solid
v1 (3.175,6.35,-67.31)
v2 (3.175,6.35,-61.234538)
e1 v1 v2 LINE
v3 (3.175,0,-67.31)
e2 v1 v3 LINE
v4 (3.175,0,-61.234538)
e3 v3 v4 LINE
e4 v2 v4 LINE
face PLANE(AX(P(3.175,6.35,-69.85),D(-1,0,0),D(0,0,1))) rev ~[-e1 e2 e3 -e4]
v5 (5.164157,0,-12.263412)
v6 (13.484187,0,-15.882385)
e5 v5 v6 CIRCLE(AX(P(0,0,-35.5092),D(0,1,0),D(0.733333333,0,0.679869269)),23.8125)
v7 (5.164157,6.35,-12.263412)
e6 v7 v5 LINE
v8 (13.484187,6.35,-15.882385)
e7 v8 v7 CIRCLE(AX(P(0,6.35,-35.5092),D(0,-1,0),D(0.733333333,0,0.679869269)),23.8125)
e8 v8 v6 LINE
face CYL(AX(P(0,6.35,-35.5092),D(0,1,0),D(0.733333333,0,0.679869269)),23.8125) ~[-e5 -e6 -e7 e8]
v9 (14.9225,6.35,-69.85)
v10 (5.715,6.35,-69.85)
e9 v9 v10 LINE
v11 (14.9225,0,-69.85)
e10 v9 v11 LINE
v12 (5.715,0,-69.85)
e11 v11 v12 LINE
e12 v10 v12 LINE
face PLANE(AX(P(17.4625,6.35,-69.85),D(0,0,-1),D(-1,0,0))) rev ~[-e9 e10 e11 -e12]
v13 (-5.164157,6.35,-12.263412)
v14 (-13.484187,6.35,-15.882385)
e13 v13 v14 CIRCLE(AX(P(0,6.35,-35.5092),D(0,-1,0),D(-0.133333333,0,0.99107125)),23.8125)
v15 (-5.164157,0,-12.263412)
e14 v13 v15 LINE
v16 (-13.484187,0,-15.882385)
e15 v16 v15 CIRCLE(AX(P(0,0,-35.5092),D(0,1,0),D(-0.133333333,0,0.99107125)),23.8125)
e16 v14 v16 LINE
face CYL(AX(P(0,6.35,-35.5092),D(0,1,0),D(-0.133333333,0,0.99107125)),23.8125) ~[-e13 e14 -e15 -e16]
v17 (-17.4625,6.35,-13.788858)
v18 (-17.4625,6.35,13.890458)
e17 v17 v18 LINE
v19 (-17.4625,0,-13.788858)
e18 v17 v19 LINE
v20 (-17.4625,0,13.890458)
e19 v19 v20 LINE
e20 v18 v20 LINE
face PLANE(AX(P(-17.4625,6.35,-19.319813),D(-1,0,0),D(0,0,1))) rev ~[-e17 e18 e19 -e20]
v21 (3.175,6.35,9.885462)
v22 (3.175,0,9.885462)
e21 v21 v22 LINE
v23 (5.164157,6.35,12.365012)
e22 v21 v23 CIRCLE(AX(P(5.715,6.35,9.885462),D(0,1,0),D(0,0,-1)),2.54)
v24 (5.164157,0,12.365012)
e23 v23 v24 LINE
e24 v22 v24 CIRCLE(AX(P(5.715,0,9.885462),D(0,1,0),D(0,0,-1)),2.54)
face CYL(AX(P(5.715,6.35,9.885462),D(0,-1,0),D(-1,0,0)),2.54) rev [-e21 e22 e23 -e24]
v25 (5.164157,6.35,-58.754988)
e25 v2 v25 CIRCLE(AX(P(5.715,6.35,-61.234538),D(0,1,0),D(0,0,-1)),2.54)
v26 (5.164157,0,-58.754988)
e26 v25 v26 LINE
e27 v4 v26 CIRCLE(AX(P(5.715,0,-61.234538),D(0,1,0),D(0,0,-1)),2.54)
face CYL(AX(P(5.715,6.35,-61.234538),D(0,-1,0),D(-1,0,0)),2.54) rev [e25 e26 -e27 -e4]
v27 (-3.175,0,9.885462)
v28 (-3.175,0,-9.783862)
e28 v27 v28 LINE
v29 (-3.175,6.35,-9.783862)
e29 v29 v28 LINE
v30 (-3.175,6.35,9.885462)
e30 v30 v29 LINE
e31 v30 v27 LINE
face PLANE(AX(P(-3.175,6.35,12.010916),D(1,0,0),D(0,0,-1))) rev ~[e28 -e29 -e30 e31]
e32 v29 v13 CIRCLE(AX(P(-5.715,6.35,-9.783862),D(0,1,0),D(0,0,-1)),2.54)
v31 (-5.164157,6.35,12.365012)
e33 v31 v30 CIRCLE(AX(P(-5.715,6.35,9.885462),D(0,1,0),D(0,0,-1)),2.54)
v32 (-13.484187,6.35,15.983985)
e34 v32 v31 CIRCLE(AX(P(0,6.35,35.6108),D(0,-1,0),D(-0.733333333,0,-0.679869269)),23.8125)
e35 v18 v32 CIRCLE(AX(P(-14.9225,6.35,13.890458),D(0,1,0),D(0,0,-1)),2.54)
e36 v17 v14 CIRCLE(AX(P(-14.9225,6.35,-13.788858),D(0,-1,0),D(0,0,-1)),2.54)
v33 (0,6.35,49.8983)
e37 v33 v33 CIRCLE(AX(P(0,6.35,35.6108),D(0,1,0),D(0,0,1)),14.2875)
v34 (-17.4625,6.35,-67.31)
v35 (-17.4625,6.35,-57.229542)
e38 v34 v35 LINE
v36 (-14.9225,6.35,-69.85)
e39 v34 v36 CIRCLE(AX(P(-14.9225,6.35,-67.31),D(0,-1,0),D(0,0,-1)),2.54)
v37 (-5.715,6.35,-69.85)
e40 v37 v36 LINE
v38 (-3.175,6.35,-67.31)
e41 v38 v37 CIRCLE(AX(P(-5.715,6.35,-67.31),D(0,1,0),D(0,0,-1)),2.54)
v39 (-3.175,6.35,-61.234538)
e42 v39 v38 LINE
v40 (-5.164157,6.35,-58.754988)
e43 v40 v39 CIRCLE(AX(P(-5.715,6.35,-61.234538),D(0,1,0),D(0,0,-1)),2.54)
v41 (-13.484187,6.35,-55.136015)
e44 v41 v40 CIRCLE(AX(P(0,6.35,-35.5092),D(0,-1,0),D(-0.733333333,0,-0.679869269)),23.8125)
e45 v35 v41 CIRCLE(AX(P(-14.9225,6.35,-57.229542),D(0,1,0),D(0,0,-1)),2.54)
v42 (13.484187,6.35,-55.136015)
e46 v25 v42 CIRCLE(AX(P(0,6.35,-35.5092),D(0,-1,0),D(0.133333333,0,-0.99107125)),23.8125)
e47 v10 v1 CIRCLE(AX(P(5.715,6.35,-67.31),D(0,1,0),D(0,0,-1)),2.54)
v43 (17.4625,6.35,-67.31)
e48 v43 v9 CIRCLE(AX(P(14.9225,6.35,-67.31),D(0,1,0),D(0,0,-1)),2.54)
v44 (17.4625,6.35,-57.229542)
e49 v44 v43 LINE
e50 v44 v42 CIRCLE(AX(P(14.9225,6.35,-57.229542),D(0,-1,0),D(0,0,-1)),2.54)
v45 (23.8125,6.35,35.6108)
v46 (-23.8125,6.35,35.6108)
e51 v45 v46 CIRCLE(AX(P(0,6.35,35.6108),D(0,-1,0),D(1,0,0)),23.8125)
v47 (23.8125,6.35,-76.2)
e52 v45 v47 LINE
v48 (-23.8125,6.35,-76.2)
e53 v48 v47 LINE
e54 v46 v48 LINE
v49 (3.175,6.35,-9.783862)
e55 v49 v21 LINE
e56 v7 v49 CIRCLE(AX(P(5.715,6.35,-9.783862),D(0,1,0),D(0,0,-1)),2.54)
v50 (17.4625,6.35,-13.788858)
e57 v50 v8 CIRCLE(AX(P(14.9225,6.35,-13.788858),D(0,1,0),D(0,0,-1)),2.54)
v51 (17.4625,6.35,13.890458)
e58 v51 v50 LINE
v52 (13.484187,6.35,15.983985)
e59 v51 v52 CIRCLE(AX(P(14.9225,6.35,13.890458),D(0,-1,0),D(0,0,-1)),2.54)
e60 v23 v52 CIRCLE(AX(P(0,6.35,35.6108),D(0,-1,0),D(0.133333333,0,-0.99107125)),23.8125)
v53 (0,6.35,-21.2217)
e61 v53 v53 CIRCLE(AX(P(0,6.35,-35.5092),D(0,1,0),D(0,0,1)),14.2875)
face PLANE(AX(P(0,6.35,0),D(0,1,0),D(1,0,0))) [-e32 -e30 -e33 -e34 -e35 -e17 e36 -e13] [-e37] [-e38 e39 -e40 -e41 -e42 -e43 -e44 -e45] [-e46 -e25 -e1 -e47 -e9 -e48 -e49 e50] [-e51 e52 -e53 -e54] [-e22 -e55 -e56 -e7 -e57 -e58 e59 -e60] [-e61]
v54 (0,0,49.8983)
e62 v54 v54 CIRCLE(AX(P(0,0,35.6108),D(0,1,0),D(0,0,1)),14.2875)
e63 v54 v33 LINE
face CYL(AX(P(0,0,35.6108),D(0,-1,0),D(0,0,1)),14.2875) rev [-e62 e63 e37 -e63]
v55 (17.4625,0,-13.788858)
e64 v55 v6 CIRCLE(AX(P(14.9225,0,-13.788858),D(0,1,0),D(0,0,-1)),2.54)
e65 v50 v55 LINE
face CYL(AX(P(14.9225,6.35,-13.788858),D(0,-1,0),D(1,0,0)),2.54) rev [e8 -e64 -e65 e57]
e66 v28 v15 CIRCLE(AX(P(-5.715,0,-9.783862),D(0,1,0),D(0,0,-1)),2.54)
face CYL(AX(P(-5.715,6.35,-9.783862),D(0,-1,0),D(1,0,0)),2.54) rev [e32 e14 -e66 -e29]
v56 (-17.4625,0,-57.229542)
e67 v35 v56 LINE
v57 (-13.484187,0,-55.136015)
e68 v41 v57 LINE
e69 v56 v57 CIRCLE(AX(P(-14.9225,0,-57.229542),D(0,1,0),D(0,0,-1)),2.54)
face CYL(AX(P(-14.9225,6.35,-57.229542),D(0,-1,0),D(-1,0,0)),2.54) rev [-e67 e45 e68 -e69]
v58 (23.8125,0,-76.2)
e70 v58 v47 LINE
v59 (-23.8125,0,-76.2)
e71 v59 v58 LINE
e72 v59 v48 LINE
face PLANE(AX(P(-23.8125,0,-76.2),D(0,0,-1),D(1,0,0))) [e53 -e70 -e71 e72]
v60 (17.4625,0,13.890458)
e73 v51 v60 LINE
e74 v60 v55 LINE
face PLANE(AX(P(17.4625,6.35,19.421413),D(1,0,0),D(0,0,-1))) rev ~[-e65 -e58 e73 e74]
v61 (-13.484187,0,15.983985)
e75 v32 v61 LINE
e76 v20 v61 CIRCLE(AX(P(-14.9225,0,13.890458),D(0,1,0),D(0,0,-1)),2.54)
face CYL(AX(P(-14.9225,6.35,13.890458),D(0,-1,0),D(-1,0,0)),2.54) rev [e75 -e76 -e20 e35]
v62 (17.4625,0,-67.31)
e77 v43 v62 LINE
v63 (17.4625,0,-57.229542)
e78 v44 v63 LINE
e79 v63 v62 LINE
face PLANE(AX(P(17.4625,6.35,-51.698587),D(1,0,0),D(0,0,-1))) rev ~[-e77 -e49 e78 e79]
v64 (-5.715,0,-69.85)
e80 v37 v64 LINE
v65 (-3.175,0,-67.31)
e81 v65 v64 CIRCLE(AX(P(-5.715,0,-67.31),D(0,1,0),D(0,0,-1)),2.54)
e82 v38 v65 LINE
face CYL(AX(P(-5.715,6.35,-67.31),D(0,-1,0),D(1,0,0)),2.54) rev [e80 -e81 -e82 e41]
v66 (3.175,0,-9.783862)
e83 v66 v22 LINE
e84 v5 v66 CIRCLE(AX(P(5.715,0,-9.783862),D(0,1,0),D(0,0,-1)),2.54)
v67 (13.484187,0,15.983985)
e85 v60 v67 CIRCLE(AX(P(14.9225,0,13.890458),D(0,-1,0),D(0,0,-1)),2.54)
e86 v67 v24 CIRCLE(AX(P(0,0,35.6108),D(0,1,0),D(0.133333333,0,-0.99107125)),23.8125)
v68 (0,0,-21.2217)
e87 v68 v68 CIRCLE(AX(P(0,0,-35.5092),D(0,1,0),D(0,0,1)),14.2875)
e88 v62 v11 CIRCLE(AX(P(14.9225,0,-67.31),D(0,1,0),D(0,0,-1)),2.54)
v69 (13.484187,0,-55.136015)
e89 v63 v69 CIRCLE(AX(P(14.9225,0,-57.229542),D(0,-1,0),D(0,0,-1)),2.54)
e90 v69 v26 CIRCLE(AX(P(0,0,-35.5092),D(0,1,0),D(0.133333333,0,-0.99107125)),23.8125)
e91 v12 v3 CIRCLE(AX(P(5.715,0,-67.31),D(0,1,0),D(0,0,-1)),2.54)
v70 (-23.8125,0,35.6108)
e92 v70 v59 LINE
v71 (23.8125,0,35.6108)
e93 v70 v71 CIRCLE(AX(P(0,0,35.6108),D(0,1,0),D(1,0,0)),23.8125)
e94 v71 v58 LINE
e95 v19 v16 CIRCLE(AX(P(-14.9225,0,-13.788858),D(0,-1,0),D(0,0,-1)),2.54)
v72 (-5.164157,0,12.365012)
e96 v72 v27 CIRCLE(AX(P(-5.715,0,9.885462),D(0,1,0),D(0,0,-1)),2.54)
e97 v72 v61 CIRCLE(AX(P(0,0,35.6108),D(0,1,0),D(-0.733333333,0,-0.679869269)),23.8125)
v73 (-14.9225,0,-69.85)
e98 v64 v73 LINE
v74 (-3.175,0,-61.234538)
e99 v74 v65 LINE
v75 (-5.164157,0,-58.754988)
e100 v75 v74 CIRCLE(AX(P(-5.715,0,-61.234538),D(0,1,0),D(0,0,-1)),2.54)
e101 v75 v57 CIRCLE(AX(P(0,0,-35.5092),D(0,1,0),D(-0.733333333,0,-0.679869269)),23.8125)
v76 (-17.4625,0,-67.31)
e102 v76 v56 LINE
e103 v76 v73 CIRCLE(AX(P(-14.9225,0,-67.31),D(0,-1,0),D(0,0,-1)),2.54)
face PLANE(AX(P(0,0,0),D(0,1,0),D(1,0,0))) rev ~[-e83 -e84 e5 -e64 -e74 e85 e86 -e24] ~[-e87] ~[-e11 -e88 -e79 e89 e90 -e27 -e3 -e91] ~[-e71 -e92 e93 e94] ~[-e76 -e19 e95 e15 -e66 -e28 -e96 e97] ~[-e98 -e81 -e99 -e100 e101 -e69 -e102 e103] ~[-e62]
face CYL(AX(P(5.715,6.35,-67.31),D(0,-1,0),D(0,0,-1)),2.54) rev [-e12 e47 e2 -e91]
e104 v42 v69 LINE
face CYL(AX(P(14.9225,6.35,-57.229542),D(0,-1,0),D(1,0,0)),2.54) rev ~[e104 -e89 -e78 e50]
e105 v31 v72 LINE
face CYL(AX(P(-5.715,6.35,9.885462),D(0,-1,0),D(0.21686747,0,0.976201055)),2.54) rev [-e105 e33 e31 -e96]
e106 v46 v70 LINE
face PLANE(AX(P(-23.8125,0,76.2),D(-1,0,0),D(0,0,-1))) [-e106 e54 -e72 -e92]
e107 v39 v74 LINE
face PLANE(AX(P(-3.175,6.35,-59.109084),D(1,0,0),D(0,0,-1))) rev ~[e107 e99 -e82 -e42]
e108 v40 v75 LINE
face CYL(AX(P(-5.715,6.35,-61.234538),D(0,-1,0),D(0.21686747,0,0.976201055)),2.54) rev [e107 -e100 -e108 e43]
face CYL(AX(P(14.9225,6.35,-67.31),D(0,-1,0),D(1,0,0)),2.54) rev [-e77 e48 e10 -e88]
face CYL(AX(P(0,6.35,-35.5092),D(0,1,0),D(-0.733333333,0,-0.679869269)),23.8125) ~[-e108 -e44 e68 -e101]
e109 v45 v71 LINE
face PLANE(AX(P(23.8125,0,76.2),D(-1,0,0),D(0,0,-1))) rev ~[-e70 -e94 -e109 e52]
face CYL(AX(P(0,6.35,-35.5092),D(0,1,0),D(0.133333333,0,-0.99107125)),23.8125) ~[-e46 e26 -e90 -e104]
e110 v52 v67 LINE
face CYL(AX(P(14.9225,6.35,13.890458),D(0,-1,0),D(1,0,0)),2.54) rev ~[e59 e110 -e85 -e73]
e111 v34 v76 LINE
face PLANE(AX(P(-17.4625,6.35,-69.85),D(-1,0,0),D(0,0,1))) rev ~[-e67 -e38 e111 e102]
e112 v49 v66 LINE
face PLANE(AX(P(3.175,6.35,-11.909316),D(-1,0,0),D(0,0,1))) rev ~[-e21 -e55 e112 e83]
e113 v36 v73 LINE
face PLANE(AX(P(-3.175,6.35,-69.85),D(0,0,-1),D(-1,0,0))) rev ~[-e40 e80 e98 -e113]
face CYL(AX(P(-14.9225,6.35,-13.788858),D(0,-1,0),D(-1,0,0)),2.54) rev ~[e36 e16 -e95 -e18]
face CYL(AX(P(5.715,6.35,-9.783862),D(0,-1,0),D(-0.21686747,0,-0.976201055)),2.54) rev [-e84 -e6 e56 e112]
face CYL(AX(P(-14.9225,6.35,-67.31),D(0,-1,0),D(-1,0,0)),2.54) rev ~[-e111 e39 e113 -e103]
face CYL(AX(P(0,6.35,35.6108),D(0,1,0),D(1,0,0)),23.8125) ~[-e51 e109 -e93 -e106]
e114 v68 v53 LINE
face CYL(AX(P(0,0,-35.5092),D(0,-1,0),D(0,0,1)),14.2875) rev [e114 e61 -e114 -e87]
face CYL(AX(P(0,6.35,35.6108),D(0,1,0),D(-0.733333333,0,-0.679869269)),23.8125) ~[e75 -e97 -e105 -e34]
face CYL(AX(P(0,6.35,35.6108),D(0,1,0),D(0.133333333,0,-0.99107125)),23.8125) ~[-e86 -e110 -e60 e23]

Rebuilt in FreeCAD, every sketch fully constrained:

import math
import FreeCAD as App
import Part
import Sketcher
from FreeCAD import Vector
Q = App.Units.Quantity


def edges_at(feature, points):
    """Names of the edges that pass closest to the given points."""
    edges = feature.Shape.Edges
    near = lambda p: min(range(len(edges)), key=lambda i: edges[i].distToShape(Part.Vertex(*p))[0])
    return sorted({f"Edge{near(p) + 1}" for p in points})

doc = App.newDocument("Part")
body = doc.addObject("PartDesign::Body", "Body")

# Sketch on XZ plane
sketch1 = doc.addObject("Sketcher::SketchObject", "Sketch")
body.addObject(sketch1)
sketch1.AttachmentSupport = (doc.XZ_Plane, [""])
sketch1.MapMode = "FlatFace"
sketch1.addGeometry(Part.LineSegment(Vector(-23.8125, -76.2, 0), Vector(-23.8125, 76.2, 0)), False)
sketch1.addGeometry(Part.LineSegment(Vector(-23.8125, 76.2, 0), Vector(23.8125, 76.2, 0)), False)
sketch1.addGeometry(Part.LineSegment(Vector(23.8125, 76.2, 0), Vector(23.8125, -76.2, 0)), False)
sketch1.addGeometry(Part.LineSegment(Vector(23.8125, -76.2, 0), Vector(-23.8125, -76.2, 0)), False)
sketch1.addGeometry(Part.Circle(Vector(0, 35.6108, 0), Vector(0, 0, 1), 14.2875), False)
sketch1.addGeometry(Part.Circle(Vector(0, -35.5092, 0), Vector(0, 0, 1), 14.2875), False)
sketch1.addConstraint(Sketcher.Constraint("Coincident", 0, 2, 1, 1))
sketch1.addConstraint(Sketcher.Constraint("Coincident", 1, 2, 2, 1))
sketch1.addConstraint(Sketcher.Constraint("Coincident", 2, 2, 3, 1))
sketch1.addConstraint(Sketcher.Constraint("Coincident", 3, 2, 0, 1))
sketch1.addConstraint(Sketcher.Constraint("Vertical", 0))
sketch1.addConstraint(Sketcher.Constraint("Horizontal", 1))
sketch1.addConstraint(Sketcher.Constraint("Vertical", 2))
sketch1.addConstraint(Sketcher.Constraint("Horizontal", 3))
sketch1.addConstraint(Sketcher.Constraint("Equal", 4, 5))
sketch1.addConstraint(Sketcher.Constraint("Symmetric", 0, 2, 2, 2, -1, 1))
sketch1.addConstraint(Sketcher.Constraint("PointOnObject", 4, 3, -2))
sketch1.addConstraint(Sketcher.Constraint("PointOnObject", 5, 3, -2))
sketch1.addConstraint(Sketcher.Constraint("DistanceY", 0, 1, 0, 2, Q("6 in")))
sketch1.addConstraint(Sketcher.Constraint("Diameter", 4, Q("1.125 in")))
sketch1.addConstraint(Sketcher.Constraint("DistanceY", 5, 3, 4, 3, Q("2.8 in")))
sketch1.addConstraint(Sketcher.Constraint("DistanceX", 1, 1, 1, 2, Q("1.875 in")))
sketch1.addConstraint(Sketcher.Constraint("DistanceY", -1, 1, 4, 3, Q("1.402 in")))
pad1 = doc.addObject("PartDesign::Pad", "Pad")
body.addObject(pad1)
pad1.Profile = sketch1
pad1.Length = Q("0.25 in")
pad1.Reversed = True

# Sketch on XZ plane
sketch2 = doc.addObject("Sketcher::SketchObject", "Sketch001")
body.addObject(sketch2)
sketch2.AttachmentSupport = (doc.XZ_Plane, [""])
sketch2.MapMode = "FlatFace"
sketch2.AttachmentOffset = App.Placement(Vector(0, 0, -0.25 * 25.4), App.Rotation())
sketch2.addGeometry(Part.ArcOfCircle(Part.Circle(Vector(0, 35.6108, 0), Vector(0, 0, 1), 23.8125), math.radians(0), math.radians(180)), False)
sketch2.addGeometry(Part.LineSegment(Vector(-23.8125, 35.6108, 0), Vector(-23.8125, 76.2, 0)), False)
sketch2.addGeometry(Part.LineSegment(Vector(-23.8125, 76.2, 0), Vector(23.8125, 76.2, 0)), False)
sketch2.addGeometry(Part.LineSegment(Vector(23.8125, 76.2, 0), Vector(23.8125, 35.6108, 0)), False)
sketch2.addGeometry(Part.LineSegment(Vector(-17.4625, -69.85, 0), Vector(-17.4625, -51.698587, 0)), False)
sketch2.addGeometry(Part.ArcOfCircle(Part.Circle(Vector(0, -35.5092, 0), Vector(0, 0, 1), 23.8125), math.radians(-137.166572), math.radians(-97.662256)), False)
sketch2.addGeometry(Part.LineSegment(Vector(-3.175, -59.109084, 0), Vector(-3.175, -69.85, 0)), False)
sketch2.addGeometry(Part.LineSegment(Vector(-3.175, -69.85, 0), Vector(-17.4625, -69.85, 0)), False)
sketch2.addGeometry(Part.ArcOfCircle(Part.Circle(Vector(0, -35.5092, 0), Vector(0, 0, 1), 23.8125), math.radians(97.662256), math.radians(137.166572)), False)
sketch2.addGeometry(Part.LineSegment(Vector(-17.4625, -19.319813, 0), Vector(-17.4625, 19.421413, 0)), False)
sketch2.addGeometry(Part.ArcOfCircle(Part.Circle(Vector(0, 35.6108, 0), Vector(0, 0, 1), 23.8125), math.radians(-137.166572), math.radians(-97.662256)), False)
sketch2.addGeometry(Part.LineSegment(Vector(-3.175, 12.010916, 0), Vector(-3.175, -11.909316, 0)), False)
sketch2.addGeometry(Part.ArcOfCircle(Part.Circle(Vector(0, -35.5092, 0), Vector(0, 0, 1), 23.8125), math.radians(-82.337744), math.radians(-42.833428)), False)
sketch2.addGeometry(Part.LineSegment(Vector(17.4625, -51.698587, 0), Vector(17.4625, -69.85, 0)), False)
sketch2.addGeometry(Part.LineSegment(Vector(17.4625, -69.85, 0), Vector(3.175, -69.85, 0)), False)
sketch2.addGeometry(Part.LineSegment(Vector(3.175, -69.85, 0), Vector(3.175, -59.109084, 0)), False)
sketch2.addGeometry(Part.LineSegment(Vector(17.4625, 19.421413, 0), Vector(17.4625, -19.319813, 0)), False)
sketch2.addGeometry(Part.ArcOfCircle(Part.Circle(Vector(0, -35.5092, 0), Vector(0, 0, 1), 23.8125), math.radians(42.833428), math.radians(82.337744)), False)
sketch2.addGeometry(Part.LineSegment(Vector(3.175, -11.909316, 0), Vector(3.175, 12.010916, 0)), False)
sketch2.addGeometry(Part.ArcOfCircle(Part.Circle(Vector(0, 35.6108, 0), Vector(0, 0, 1), 23.8125), math.radians(-82.337744), math.radians(-42.833428)), False)
sketch2.addConstraint(Sketcher.Constraint("Tangent", 0, 2, 1, 1))
sketch2.addConstraint(Sketcher.Constraint("Coincident", 1, 2, 2, 1))
sketch2.addConstraint(Sketcher.Constraint("Coincident", 2, 2, 3, 1))
sketch2.addConstraint(Sketcher.Constraint("Tangent", 3, 2, 0, 1))
sketch2.addConstraint(Sketcher.Constraint("Coincident", 4, 2, 5, 1))
sketch2.addConstraint(Sketcher.Constraint("Coincident", 5, 2, 6, 1))
sketch2.addConstraint(Sketcher.Constraint("Coincident", 6, 2, 7, 1))
sketch2.addConstraint(Sketcher.Constraint("Coincident", 7, 2, 4, 1))
sketch2.addConstraint(Sketcher.Constraint("Coincident", 8, 2, 9, 1))
sketch2.addConstraint(Sketcher.Constraint("Coincident", 9, 2, 10, 1))
sketch2.addConstraint(Sketcher.Constraint("Coincident", 10, 2, 11, 1))
sketch2.addConstraint(Sketcher.Constraint("Coincident", 11, 2, 8, 1))
sketch2.addConstraint(Sketcher.Constraint("Coincident", 12, 2, 13, 1))
sketch2.addConstraint(Sketcher.Constraint("Coincident", 13, 2, 14, 1))
sketch2.addConstraint(Sketcher.Constraint("Coincident", 14, 2, 15, 1))
sketch2.addConstraint(Sketcher.Constraint("Coincident", 15, 2, 12, 1))
sketch2.addConstraint(Sketcher.Constraint("Coincident", 16, 2, 17, 1))
sketch2.addConstraint(Sketcher.Constraint("Coincident", 17, 2, 18, 1))
sketch2.addConstraint(Sketcher.Constraint("Coincident", 18, 2, 19, 1))
sketch2.addConstraint(Sketcher.Constraint("Coincident", 19, 2, 16, 1))
sketch2.addConstraint(Sketcher.Constraint("Vertical", 1))
sketch2.addConstraint(Sketcher.Constraint("Horizontal", 2))
sketch2.addConstraint(Sketcher.Constraint("Vertical", 3))
sketch2.addConstraint(Sketcher.Constraint("Vertical", 4))
sketch2.addConstraint(Sketcher.Constraint("Vertical", 6))
sketch2.addConstraint(Sketcher.Constraint("Horizontal", 7))
sketch2.addConstraint(Sketcher.Constraint("Vertical", 9))
sketch2.addConstraint(Sketcher.Constraint("Vertical", 11))
sketch2.addConstraint(Sketcher.Constraint("Vertical", 13))
sketch2.addConstraint(Sketcher.Constraint("Horizontal", 14))
sketch2.addConstraint(Sketcher.Constraint("Vertical", 15))
sketch2.addConstraint(Sketcher.Constraint("Vertical", 16))
sketch2.addConstraint(Sketcher.Constraint("Vertical", 18))
sketch2.addConstraint(Sketcher.Constraint("Coincident", 8, 3, 5, 3))
sketch2.addConstraint(Sketcher.Constraint("Coincident", 10, 3, 0, 3))
sketch2.addConstraint(Sketcher.Constraint("Coincident", 12, 3, 5, 3))
sketch2.addConstraint(Sketcher.Constraint("Coincident", 17, 3, 5, 3))
sketch2.addConstraint(Sketcher.Constraint("Coincident", 19, 3, 0, 3))
sketch2.addConstraint(Sketcher.Constraint("Equal", 0, 5))
sketch2.addConstraint(Sketcher.Constraint("Equal", 5, 8))
sketch2.addConstraint(Sketcher.Constraint("Equal", 8, 10))
sketch2.addConstraint(Sketcher.Constraint("Equal", 10, 12))
sketch2.addConstraint(Sketcher.Constraint("Equal", 12, 17))
sketch2.addConstraint(Sketcher.Constraint("Equal", 17, 19))
sketch2.addConstraint(Sketcher.Constraint("Symmetric", 4, 2, 12, 2, -2))
sketch2.addConstraint(Sketcher.Constraint("Symmetric", 6, 2, 14, 2, -2))
sketch2.addConstraint(Sketcher.Constraint("Symmetric", 10, 2, 18, 2, -2))
sketch2.addConstraint(Sketcher.Constraint("Horizontal", 8, 2, 16, 2))
sketch2.addConstraint(Sketcher.Constraint("Vertical", 7, 2, 8, 2))
sketch2.addConstraint(Sketcher.Constraint("Vertical", 6, 2, 10, 2))
sketch2.addConstraint(Sketcher.Constraint("DistanceY", -1, 1, 1, 2, Q("3 in")))
sketch2.addConstraint(Sketcher.Constraint("Radius", 0, Q("0.9375 in")))
sketch2.addConstraint(Sketcher.Constraint("DistanceY", 5, 3, 0, 3, Q("2.8 in")))
sketch2.addConstraint(Sketcher.Constraint("DistanceX", 7, 2, 7, 1, Q("0.5625 in")))
sketch2.addConstraint(Sketcher.Constraint("DistanceY", 1, 1, 1, 2, Q("1.598 in")))
sketch2.addConstraint(Sketcher.Constraint("DistanceY", 6, 2, -1, 1, Q("2.75 in")))
sketch2.addConstraint(Sketcher.Constraint("DistanceX", 0, 2, 4, 2, Q("0.25 in")))
pocket1 = doc.addObject("PartDesign::Pocket", "Pocket")
body.addObject(pocket1)
pocket1.Profile = sketch2
pocket1.Type = "ThroughAll"
pocket1.Reversed = True
doc.recompute()

fillet = doc.addObject("PartDesign::Fillet", "Fillet")
body.addObject(fillet)
fillet.Base = (pocket1, edges_at(pocket1, [
    (-3.175, 3.175, -59.109),
    (-17.462, 3.175, -51.699),
    (-17.462, 3.175, -69.85),
    (-3.175, 3.175, -69.85),
    (17.462, 3.175, -51.699),
    (3.175, 3.175, -59.109),
    (3.175, 3.175, -69.85),
    (17.462, 3.175, -69.85),
    (-3.175, 3.175, 12.011),
    (-17.462, 3.175, 19.421),
    (-17.462, 3.175, -19.32),
    (-3.175, 3.175, -11.909),
    (17.462, 3.175, 19.421),
    (3.175, 3.175, 12.011),
    (3.175, 3.175, -11.909),
    (17.462, 3.175, -19.32),
]))
fillet.Radius = Q("0.1 in")

doc.recompute()
